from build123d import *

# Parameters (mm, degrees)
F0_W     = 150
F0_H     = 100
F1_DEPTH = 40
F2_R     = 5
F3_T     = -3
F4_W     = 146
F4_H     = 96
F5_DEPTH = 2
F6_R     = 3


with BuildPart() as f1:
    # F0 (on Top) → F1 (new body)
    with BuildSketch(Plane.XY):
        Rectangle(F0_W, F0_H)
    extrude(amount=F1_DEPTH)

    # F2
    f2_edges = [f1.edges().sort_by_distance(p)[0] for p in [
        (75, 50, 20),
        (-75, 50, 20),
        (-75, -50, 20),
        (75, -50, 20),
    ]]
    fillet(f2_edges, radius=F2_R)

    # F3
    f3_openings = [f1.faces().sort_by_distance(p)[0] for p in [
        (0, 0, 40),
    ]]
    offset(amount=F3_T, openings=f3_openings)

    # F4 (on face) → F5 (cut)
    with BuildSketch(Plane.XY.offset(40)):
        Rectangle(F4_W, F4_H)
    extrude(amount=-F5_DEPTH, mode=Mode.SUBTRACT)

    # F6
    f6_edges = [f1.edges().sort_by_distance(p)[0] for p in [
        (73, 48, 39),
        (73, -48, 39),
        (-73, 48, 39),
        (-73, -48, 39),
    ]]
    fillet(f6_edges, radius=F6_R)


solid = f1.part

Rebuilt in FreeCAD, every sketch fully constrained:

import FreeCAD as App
import Part
import Sketcher
from FreeCAD import Vector


def edges_at(feature, points):
    """Names of the edges that pass closest to the given points."""
    edges = feature.Shape.Edges
    near = lambda p: min(range(len(edges)), key=lambda i: edges[i].distToShape(Part.Vertex(*p))[0])
    return sorted({f"Edge{near(p) + 1}" for p in points})


def faces_at(feature, points):
    """Names of the faces that lie closest to the given points."""
    faces = feature.Shape.Faces
    near = lambda p: min(range(len(faces)), key=lambda i: faces[i].distToShape(Part.Vertex(*p))[0])
    return sorted({f"Face{near(p) + 1}" for p in points})


def add_polygon(sketch, points):
    """Adds a closed chain of lines whose ends are joined by coincident constraints."""
    first, n = sketch.GeometryCount, len(points)
    for a, b in zip(points, points[1:] + points[:1]):
        sketch.addGeometry(Part.LineSegment(App.Vector(*a, 0), App.Vector(*b, 0)), False)
    for i in range(n):
        sketch.addConstraint(Sketcher.Constraint("Coincident", first + i, 2, first + (i + 1) % n, 1))

doc = App.newDocument("Part")
body = doc.addObject("PartDesign::Body", "Body")

sketch1 = body.newObject("Sketcher::SketchObject", "Sketch")
sketch1.AttachmentSupport = (doc.getObject("XY_Plane"), [""])
sketch1.MapMode = "FlatFace"
add_polygon(sketch1, [(-75, 50), (-75, -50), (75, -50), (75, 50)])
sketch1.addConstraint(Sketcher.Constraint("Vertical", 0))
sketch1.addConstraint(Sketcher.Constraint("Horizontal", 1))
sketch1.addConstraint(Sketcher.Constraint("Vertical", 2))
sketch1.addConstraint(Sketcher.Constraint("Horizontal", 3))
sketch1.addConstraint(Sketcher.Constraint("Symmetric", 0, 2, 2, 2, -1, 1))
sketch1.addConstraint(Sketcher.Constraint("DistanceX", 1, 1, 1, 2, 150.0))
sketch1.addConstraint(Sketcher.Constraint("DistanceY", 0, 2, 0, 1, 100.0))
pad1 = body.newObject("PartDesign::Pad", "Pad")
pad1.Profile = sketch1
pad1.Length = 40
doc.recompute()

fillet = body.newObject("PartDesign::Fillet", "Fillet")
fillet.Base = (pad1, edges_at(pad1, [
    (75, 50, 20),
    (-75, 50, 20),
    (-75, -50, 20),
    (75, -50, 20),
]))
fillet.Radius = 5
doc.recompute()

thickness = body.newObject("PartDesign::Thickness", "Thickness")
thickness.Base = (fillet, faces_at(fillet, [(0, 0, 40)]))
thickness.Value = 3
thickness.Reversed = True
thickness.Join = "Arc"

sketch2 = body.newObject("Sketcher::SketchObject", "Sketch001")
sketch2.AttachmentSupport = (doc.getObject("XY_Plane"), [""])
sketch2.MapMode = "FlatFace"
sketch2.AttachmentOffset = App.Placement(Vector(0, 0, 40), App.Rotation())
add_polygon(sketch2, [(-73, 48), (-73, -48), (73, -48), (73, 48)])
sketch2.addConstraint(Sketcher.Constraint("Vertical", 0))
sketch2.addConstraint(Sketcher.Constraint("Horizontal", 1))
sketch2.addConstraint(Sketcher.Constraint("Vertical", 2))
sketch2.addConstraint(Sketcher.Constraint("Horizontal", 3))
sketch2.addConstraint(Sketcher.Constraint("Symmetric", 0, 2, 2, 2, -1, 1))
sketch2.addConstraint(Sketcher.Constraint("DistanceX", 1, 1, 1, 2, 146.0))
sketch2.addConstraint(Sketcher.Constraint("DistanceY", 0, 2, 0, 1, 96.0))
pocket1 = body.newObject("PartDesign::Pocket", "Pocket")
pocket1.Profile = sketch2
pocket1.Length = 2
doc.recompute()

fillet2 = body.newObject("PartDesign::Fillet", "Fillet001")
fillet2.Base = (pocket1, edges_at(pocket1, [
    (73, 48, 39),
    (73, -48, 39),
    (-73, 48, 39),
    (-73, -48, 39),
]))
fillet2.Radius = 3

doc.recompute()
